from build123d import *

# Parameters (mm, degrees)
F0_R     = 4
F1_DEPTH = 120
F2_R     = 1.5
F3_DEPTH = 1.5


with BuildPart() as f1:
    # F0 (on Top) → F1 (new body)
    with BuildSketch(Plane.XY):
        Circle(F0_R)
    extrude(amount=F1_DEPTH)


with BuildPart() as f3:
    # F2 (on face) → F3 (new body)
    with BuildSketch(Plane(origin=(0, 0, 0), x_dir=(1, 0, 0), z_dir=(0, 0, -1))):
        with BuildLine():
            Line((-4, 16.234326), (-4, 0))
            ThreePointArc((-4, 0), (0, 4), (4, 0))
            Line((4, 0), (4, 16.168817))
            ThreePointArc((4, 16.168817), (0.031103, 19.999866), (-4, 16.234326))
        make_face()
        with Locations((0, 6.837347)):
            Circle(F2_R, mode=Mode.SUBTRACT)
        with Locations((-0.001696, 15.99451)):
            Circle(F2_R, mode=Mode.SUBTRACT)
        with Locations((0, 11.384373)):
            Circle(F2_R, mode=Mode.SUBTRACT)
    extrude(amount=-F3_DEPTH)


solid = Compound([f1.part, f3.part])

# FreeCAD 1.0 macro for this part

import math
import FreeCAD as App
import Part
import Sketcher

doc = App.newDocument("Part")
params = doc.addObject("Spreadsheet::Sheet", "Params")
for row, (alias, value) in enumerate([
    ("sketch1_diameter", "8 mm"),
    ("pad1_length", "120 mm"),
    ("sketch2_diameter", "3 mm"),
    ("sketch2_radius", "4 mm"),
    ("pad2_length", "1.5 mm"),
], start=1):
    params.set(f"A{row}", alias)
    params.set(f"B{row}", "=" + value)
    params.setAlias(f"B{row}", alias)

body = doc.addObject("PartDesign::Body", "Body")

sketch1 = body.newObject("Sketcher::SketchObject", "Sketch")
sketch1.AttachmentSupport = (doc.getObject("XY_Plane"), [""])
sketch1.MapMode = "FlatFace"
sketch1.addGeometry(Part.Circle(App.Vector(0, 0, 0), App.Vector(0, 0, 1), 4), False)
sketch1.addConstraint(Sketcher.Constraint("Coincident", 0, 3, -1, 1))
sketch1.addConstraint(Sketcher.Constraint("Diameter", 0, 8.0))
sketch1.setExpression("Constraints[1]", "Params.sketch1_diameter")
pad1 = body.newObject("PartDesign::Pad", "Pad")
pad1.Profile = sketch1
pad1.setExpression("Length", "Params.pad1_length")
body2 = doc.addObject("PartDesign::Body", "Body001")

sketch2 = body2.newObject("Sketcher::SketchObject", "Sketch001")
sketch2.AttachmentSupport = (doc.getObject("XY_Plane001"), [""])
sketch2.MapMode = "FlatFace"
sketch2.addGeometry(Part.LineSegment(App.Vector(-4, -16.2, 0), App.Vector(-4, 0, 0)), False)
sketch2.addGeometry(Part.ArcOfCircle(Part.Circle(App.Vector(0, 0, 0), App.Vector(0, 0, 1), 4), math.radians(180), math.radians(360)), False)
sketch2.addGeometry(Part.LineSegment(App.Vector(4, 0, 0), App.Vector(4, -16.2, 0)), False)
sketch2.addGeometry(Part.ArcOfCircle(Part.Circle(App.Vector(0, -16, 0), App.Vector(0, 0, 1), 4), math.radians(-177), math.radians(-2)), False)
sketch2.addGeometry(Part.Circle(App.Vector(0, -6.8, 0), App.Vector(0, 0, 1), 1.5), False)
sketch2.addGeometry(Part.Circle(App.Vector(0, -11.4, 0), App.Vector(0, 0, 1), 1.5), False)
sketch2.addGeometry(Part.Circle(App.Vector(0, -16, 0), App.Vector(0, 0, 1), 1.5), False)
sketch2.addConstraint(Sketcher.Constraint("Tangent", 0, 2, 1, 1))
sketch2.addConstraint(Sketcher.Constraint("Tangent", 1, 2, 2, 1))
sketch2.addConstraint(Sketcher.Constraint("Coincident", 2, 2, 3, 2))
sketch2.addConstraint(Sketcher.Constraint("Coincident", 3, 1, 0, 1))
sketch2.addConstraint(Sketcher.Constraint("Vertical", 0))
sketch2.addConstraint(Sketcher.Constraint("Vertical", 2))
sketch2.addConstraint(Sketcher.Constraint("Coincident", 1, 3, -1, 1))
sketch2.addConstraint(Sketcher.Constraint("Coincident", 6, 3, 3, 3))
sketch2.addConstraint(Sketcher.Constraint("Equal", 4, 5))
sketch2.addConstraint(Sketcher.Constraint("Equal", 5, 6))
sketch2.addConstraint(Sketcher.Constraint("PointOnObject", 4, 3, -2))
sketch2.addConstraint(Sketcher.Constraint("PointOnObject", 5, 3, -2))
sketch2.addConstraint(Sketcher.Constraint("Diameter", 4, 3.0))
sketch2.addConstraint(Sketcher.Constraint("Radius", 1, 4.0))
sketch2.addConstraint(Sketcher.Constraint("Radius", 3, 4.00549))
sketch2.addConstraint(Sketcher.Constraint("DistanceY", 0, 1, 0, 2, 16.234326))
sketch2.addConstraint(Sketcher.Constraint("DistanceY", 2, 2, 2, 1, 16.168817))
sketch2.addConstraint(Sketcher.Constraint("DistanceY", 2, 2, 4, 3, 9.33147))
sketch2.addConstraint(Sketcher.Constraint("DistanceY", 5, 3, -1, 1, 11.384373))
sketch2.setExpression("Constraints[12]", "Params.sketch2_diameter")
sketch2.setExpression("Constraints[13]", "Params.sketch2_radius")
pad2 = body2.newObject("PartDesign::Pad", "Pad001")
pad2.Profile = sketch2
pad2.setExpression("Length", "Params.pad2_length")

doc.recompute()
